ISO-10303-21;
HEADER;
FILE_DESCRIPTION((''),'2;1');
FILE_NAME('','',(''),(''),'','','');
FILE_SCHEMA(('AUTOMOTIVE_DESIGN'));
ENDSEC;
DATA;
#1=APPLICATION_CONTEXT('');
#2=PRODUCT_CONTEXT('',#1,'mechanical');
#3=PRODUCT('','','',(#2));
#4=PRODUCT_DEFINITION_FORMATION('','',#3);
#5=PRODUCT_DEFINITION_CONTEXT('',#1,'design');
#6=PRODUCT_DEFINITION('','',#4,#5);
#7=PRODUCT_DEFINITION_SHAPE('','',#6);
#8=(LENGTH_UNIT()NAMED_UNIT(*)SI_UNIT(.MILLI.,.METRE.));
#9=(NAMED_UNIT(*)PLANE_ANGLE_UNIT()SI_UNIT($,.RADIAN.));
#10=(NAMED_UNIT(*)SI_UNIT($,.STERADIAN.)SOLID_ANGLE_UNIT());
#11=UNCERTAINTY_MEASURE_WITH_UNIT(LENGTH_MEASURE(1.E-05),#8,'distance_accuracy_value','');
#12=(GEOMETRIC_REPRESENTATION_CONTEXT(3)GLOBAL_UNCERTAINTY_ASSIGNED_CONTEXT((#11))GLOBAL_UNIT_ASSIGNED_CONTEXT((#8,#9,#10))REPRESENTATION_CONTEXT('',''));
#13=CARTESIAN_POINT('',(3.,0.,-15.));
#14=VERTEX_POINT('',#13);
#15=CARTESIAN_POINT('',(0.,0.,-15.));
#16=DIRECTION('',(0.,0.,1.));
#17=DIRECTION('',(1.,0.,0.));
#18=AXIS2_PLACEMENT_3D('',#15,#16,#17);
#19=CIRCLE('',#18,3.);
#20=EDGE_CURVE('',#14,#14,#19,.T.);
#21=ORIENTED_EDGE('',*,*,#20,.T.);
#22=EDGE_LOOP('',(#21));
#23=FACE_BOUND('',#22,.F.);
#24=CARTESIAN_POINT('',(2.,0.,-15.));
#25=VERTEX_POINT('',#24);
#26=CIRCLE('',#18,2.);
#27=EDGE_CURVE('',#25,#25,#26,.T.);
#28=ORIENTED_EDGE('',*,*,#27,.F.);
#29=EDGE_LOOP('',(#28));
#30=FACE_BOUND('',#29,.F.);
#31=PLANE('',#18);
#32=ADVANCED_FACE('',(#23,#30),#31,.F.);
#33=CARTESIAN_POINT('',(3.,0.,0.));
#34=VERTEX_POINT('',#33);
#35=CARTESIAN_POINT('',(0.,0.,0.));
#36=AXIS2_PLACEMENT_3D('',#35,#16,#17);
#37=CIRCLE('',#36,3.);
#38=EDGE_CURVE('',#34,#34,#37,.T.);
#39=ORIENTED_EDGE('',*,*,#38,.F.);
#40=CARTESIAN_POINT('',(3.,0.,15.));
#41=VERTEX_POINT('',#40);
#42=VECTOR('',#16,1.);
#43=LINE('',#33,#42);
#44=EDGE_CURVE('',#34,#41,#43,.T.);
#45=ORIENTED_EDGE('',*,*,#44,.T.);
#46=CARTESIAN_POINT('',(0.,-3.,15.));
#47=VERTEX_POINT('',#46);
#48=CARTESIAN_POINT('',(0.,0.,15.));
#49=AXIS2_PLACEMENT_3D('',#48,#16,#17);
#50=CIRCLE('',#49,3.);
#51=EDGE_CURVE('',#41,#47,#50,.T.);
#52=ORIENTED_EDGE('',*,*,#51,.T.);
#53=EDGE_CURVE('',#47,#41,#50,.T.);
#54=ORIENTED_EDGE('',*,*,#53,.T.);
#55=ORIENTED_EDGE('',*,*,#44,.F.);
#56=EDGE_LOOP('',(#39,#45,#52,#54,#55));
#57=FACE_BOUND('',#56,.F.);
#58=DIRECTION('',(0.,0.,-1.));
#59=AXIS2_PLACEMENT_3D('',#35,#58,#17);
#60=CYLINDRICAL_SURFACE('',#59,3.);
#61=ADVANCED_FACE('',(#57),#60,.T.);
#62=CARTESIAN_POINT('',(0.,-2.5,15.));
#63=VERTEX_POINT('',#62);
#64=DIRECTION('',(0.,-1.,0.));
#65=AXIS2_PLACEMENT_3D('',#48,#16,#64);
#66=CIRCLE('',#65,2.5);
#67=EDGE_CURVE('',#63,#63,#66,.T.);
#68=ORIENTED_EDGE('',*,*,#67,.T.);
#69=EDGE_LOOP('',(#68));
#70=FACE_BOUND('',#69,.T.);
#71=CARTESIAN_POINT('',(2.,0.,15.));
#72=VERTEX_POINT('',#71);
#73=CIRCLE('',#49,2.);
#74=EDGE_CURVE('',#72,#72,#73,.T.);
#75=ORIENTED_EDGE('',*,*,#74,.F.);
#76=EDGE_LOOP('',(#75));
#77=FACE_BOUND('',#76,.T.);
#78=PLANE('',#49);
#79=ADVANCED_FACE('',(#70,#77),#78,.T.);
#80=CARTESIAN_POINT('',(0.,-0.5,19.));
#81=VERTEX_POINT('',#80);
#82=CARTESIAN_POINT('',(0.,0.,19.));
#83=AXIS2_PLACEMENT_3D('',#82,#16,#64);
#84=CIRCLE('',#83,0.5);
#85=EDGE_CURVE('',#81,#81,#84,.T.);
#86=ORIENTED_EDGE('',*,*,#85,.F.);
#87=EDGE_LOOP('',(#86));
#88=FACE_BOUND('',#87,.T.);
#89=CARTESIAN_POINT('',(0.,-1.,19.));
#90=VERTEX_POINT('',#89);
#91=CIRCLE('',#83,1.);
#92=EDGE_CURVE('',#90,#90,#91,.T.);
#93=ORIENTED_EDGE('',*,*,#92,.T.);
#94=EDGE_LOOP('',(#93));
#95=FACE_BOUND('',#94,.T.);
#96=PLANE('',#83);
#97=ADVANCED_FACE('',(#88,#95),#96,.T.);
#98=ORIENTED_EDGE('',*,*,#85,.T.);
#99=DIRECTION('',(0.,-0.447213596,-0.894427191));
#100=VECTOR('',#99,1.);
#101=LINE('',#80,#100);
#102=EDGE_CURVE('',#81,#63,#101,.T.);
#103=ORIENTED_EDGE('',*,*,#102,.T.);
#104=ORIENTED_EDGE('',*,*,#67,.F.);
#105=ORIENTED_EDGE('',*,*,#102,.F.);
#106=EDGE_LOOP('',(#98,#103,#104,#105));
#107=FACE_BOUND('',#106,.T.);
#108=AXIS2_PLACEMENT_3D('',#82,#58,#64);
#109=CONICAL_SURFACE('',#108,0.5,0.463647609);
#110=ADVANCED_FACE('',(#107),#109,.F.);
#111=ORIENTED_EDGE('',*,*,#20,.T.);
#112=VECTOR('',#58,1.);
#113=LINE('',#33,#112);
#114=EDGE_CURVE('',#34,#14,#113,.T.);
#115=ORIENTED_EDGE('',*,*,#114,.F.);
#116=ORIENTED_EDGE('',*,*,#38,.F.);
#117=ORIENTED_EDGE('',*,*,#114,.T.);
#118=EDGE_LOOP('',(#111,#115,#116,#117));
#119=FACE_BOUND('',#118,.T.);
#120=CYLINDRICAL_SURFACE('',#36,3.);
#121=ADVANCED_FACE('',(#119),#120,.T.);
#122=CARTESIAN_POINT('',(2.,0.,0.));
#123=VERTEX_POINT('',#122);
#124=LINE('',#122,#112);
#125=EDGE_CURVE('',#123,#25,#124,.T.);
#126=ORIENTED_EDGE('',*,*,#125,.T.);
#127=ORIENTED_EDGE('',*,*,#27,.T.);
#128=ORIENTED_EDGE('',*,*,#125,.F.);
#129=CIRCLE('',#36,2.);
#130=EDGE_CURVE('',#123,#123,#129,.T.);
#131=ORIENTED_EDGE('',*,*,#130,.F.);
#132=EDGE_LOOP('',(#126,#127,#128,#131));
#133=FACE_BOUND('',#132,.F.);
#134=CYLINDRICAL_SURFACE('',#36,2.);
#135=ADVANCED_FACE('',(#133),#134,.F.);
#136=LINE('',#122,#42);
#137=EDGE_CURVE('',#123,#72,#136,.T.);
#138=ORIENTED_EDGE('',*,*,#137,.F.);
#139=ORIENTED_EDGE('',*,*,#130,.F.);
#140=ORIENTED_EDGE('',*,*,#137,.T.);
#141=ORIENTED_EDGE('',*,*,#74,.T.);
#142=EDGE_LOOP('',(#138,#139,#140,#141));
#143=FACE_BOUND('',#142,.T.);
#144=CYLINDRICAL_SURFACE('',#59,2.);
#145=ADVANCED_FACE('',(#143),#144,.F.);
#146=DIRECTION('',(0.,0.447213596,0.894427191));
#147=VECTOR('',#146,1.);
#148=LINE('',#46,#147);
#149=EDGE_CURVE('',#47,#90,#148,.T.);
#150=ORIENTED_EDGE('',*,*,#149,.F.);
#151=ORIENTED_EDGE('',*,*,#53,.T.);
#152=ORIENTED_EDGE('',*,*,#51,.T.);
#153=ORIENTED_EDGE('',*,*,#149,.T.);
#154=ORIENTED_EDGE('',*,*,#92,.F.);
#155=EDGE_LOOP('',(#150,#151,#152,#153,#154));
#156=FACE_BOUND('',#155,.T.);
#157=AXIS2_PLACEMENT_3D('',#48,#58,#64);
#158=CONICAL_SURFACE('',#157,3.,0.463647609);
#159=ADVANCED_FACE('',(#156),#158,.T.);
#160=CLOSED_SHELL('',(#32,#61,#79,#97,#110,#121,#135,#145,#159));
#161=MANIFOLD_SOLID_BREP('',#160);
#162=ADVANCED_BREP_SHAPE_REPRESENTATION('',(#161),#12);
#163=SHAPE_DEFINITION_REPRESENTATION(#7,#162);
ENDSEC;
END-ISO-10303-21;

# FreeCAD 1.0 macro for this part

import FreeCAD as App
import Part
import Sketcher
from FreeCAD import Vector
Q = App.Units.Quantity

doc = App.newDocument("Part")
body = doc.addObject("PartDesign::Body", "Body")

# Sketch on XY plane
sketch1 = body.newObject("Sketcher::SketchObject", "Sketch")
sketch1.AttachmentSupport = (doc.getObject("XY_Plane"), [""])
sketch1.MapMode = "FlatFace"
sketch1.addGeometry([
    Part.Circle(Vector(0, 0, 0), Vector(0, 0, 1), 3),
    Part.Circle(Vector(0, 0, 0), Vector(0, 0, 1), 2),
], False)
sketch1.addConstraint([
    Sketcher.Constraint("Coincident", 0, 3, -1, 1),
    Sketcher.Constraint("Coincident", 1, 3, -1, 1),
    Sketcher.Constraint("Diameter", 0, Q("6 mm")),
    Sketcher.Constraint("Diameter", 1, Q("4 mm")),
])
pad1 = body.newObject("PartDesign::Pad", "Pad")
pad1.Profile = sketch1
pad1.Length = 30
pad1.Midplane = True

# Sketch on YZ plane
sketch2 = body.newObject("Sketcher::SketchObject", "Sketch001")
sketch2.AttachmentSupport = (doc.getObject("YZ_Plane"), [""])
sketch2.MapMode = "FlatFace"
sketch2.addGeometry([
    Part.LineSegment(Vector(-1, 19, 0), Vector(-3, 15, 0)),
    Part.LineSegment(Vector(-3, 15, 0), Vector(-2.5, 15, 0)),
    Part.LineSegment(Vector(-2.5, 15, 0), Vector(-0.5, 19, 0)),
    Part.LineSegment(Vector(-0.5, 19, 0), Vector(-1, 19, 0)),
], False)
sketch2.addConstraint([
    Sketcher.Constraint("Coincident", 0, 2, 1, 1),
    Sketcher.Constraint("Coincident", 1, 2, 2, 1),
    Sketcher.Constraint("Coincident", 2, 2, 3, 1),
    Sketcher.Constraint("Coincident", 3, 2, 0, 1),
    Sketcher.Constraint("Horizontal", 1),
    Sketcher.Constraint("Horizontal", 3),
    Sketcher.Constraint("Parallel", 0, 2),
    Sketcher.Constraint("DistanceX", 3, 2, -1, 1, Q("1 mm")),
    Sketcher.Constraint("DistanceX", 1, 2, 2, 2, Q("2 mm")),
    Sketcher.Constraint("DistanceY", 1, 2, 2, 2, Q("4 mm")),
    Sketcher.Constraint("DistanceX", 1, 1, 1, 2, Q("0.5 mm")),
    Sketcher.Constraint("DistanceY", -1, 1, 0, 2, Q("15 mm")),
])
revolution = body.newObject("PartDesign::Revolution", "Revolution")
revolution.Profile = sketch2
revolution.ReferenceAxis = (sketch2, ["V_Axis"])
revolution.Angle = 360

doc.recompute()
